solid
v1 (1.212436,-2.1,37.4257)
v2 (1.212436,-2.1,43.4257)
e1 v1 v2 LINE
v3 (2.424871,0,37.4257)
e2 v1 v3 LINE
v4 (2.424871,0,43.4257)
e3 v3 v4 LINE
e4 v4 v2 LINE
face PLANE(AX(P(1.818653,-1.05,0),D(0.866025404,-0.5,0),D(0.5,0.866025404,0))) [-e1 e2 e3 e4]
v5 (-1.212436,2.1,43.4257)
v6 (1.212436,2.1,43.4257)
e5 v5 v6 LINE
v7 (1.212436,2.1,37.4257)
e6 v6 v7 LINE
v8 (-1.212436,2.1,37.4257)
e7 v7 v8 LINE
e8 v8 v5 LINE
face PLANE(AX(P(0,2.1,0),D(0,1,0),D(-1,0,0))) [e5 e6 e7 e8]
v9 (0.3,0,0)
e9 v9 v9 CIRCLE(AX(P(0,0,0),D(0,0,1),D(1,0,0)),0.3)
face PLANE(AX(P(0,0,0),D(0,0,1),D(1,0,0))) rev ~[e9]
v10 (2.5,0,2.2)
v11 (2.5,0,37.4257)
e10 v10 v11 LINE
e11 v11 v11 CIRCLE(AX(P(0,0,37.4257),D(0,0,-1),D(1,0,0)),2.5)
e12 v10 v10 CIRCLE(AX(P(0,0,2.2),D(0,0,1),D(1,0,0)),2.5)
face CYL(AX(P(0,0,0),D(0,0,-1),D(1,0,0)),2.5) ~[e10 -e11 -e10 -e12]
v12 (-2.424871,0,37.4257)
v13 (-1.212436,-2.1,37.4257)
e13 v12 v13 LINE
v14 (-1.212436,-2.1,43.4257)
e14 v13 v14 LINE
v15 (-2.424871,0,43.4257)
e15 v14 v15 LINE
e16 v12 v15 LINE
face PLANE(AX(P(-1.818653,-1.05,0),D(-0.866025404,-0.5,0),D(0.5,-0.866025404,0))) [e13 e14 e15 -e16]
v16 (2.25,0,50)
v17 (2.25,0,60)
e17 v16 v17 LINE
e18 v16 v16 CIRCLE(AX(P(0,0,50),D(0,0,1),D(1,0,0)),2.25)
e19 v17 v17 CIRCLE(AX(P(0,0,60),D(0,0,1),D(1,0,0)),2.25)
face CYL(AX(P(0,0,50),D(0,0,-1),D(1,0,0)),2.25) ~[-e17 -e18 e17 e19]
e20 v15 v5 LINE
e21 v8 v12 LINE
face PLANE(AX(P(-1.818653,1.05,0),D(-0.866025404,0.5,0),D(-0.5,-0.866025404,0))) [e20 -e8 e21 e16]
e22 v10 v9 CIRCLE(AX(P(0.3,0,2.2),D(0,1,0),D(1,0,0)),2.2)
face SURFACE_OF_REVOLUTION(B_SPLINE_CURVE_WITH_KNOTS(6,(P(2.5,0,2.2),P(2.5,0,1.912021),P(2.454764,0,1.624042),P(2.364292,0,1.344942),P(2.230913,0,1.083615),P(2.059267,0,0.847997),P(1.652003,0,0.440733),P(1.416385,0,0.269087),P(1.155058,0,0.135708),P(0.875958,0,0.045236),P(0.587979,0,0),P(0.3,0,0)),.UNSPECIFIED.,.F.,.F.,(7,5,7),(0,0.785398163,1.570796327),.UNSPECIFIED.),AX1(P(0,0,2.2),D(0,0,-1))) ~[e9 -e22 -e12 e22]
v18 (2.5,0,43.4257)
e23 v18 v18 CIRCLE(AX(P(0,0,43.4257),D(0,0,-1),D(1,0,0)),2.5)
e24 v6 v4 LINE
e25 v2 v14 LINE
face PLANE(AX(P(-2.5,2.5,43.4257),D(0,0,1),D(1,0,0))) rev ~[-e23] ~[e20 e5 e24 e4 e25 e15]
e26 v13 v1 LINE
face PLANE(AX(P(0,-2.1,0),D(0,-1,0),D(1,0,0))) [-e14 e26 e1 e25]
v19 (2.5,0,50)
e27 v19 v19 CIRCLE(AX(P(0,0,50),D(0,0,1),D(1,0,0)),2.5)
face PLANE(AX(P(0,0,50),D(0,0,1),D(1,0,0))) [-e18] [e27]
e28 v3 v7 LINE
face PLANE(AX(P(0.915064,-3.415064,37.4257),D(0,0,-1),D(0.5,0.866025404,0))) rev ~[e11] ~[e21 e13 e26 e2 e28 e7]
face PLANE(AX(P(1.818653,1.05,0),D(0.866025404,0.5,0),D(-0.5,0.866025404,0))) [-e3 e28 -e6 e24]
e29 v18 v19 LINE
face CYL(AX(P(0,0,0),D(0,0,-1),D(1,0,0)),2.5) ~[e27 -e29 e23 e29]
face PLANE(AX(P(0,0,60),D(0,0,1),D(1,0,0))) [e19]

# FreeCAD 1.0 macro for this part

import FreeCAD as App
import Part
import Sketcher
from FreeCAD import Vector


def edges_at(feature, points):
    """Names of the edges that pass closest to the given points."""
    edges = feature.Shape.Edges
    near = lambda p: min(range(len(edges)), key=lambda i: edges[i].distToShape(Part.Vertex(*p))[0])
    return sorted({f"Edge{near(p) + 1}" for p in points})

doc = App.newDocument("Part")
body = doc.addObject("PartDesign::Body", "Body")

# Sketch on XY plane
sketch1 = body.newObject("Sketcher::SketchObject", "Sketch")
sketch1.AttachmentSupport = (doc.getObject("XY_Plane"), [""])
sketch1.MapMode = "FlatFace"
sketch1.addGeometry(Part.Circle(Vector(0, 0, 0), Vector(0, 0, 1), 2.5), False)
sketch1.addConstraint([
    Sketcher.Constraint("Coincident", 0, 3, -1, 1),
    Sketcher.Constraint("Diameter", 0, 5.0),
])
pad1 = body.newObject("PartDesign::Pad", "Pad")
pad1.Profile = sketch1
pad1.Length = 50
doc.recompute()

fillet = body.newObject("PartDesign::Fillet", "Fillet")
fillet.Base = (pad1, edges_at(pad1, [(-2.5, 0, 0)]))
fillet.Radius = 2.2

# Sketch on XZ plane
sketch2 = body.newObject("Sketcher::SketchObject", "Sketch001")
sketch2.AttachmentSupport = (doc.getObject("XZ_Plane"), [""])
sketch2.MapMode = "FlatFace"
sketch2.AttachmentOffset = App.Placement(Vector(0, 0, -2.5), App.Rotation())
sketch2.addGeometry([
    Part.LineSegment(Vector(2, 37, 0), Vector(-2, 37, 0)),
    Part.LineSegment(Vector(-2, 37, 0), Vector(-2, 43, 0)),
    Part.LineSegment(Vector(-2, 43, 0), Vector(2, 43, 0)),
    Part.LineSegment(Vector(2, 43, 0), Vector(2, 37, 0)),
], False)
sketch2.addConstraint([
    Sketcher.Constraint("Coincident", 0, 2, 1, 1),
    Sketcher.Constraint("Coincident", 1, 2, 2, 1),
    Sketcher.Constraint("Coincident", 2, 2, 3, 1),
    Sketcher.Constraint("Coincident", 3, 2, 0, 1),
    Sketcher.Constraint("Horizontal", 0),
    Sketcher.Constraint("Vertical", 1),
    Sketcher.Constraint("Horizontal", 2),
    Sketcher.Constraint("Vertical", 3),
    Sketcher.Constraint("DistanceY", 1, 1, 1, 2, 6.0),
    Sketcher.Constraint("DistanceX", 0, 2, 0, 1, 5.0),
    Sketcher.Constraint("DistanceX", 0, 2, -1, 1, 2.5),
    Sketcher.Constraint("DistanceY", -1, 1, 0, 2, 37.4257),
])
pocket1 = body.newObject("PartDesign::Pocket", "Pocket")
pocket1.Profile = sketch2
pocket1.Length = 0.4
pocket1.Reversed = True
doc.recompute()

polarpattern = body.newObject("PartDesign::PolarPattern", "PolarPattern")
polarpattern.Originals = [pocket1]
polarpattern.Axis = (doc.getObject("Z_Axis"), [""])
polarpattern.Angle = 360
polarpattern.Occurrences = 6
body.Tip = polarpattern

# Sketch on XY plane
sketch3 = body.newObject("Sketcher::SketchObject", "Sketch002")
sketch3.AttachmentSupport = (doc.getObject("XY_Plane"), [""])
sketch3.MapMode = "FlatFace"
sketch3.AttachmentOffset = App.Placement(Vector(0, 0, 50), App.Rotation())
sketch3.addGeometry(Part.Circle(Vector(0, 0, 0), Vector(0, 0, 1), 2.2), False)
sketch3.addConstraint([
    Sketcher.Constraint("Coincident", 0, 3, -1, 1),
    Sketcher.Constraint("Diameter", 0, 4.5),
])
pad2 = body.newObject("PartDesign::Pad", "Pad001")
pad2.Profile = sketch3
pad2.Length = 10

doc.recompute()
